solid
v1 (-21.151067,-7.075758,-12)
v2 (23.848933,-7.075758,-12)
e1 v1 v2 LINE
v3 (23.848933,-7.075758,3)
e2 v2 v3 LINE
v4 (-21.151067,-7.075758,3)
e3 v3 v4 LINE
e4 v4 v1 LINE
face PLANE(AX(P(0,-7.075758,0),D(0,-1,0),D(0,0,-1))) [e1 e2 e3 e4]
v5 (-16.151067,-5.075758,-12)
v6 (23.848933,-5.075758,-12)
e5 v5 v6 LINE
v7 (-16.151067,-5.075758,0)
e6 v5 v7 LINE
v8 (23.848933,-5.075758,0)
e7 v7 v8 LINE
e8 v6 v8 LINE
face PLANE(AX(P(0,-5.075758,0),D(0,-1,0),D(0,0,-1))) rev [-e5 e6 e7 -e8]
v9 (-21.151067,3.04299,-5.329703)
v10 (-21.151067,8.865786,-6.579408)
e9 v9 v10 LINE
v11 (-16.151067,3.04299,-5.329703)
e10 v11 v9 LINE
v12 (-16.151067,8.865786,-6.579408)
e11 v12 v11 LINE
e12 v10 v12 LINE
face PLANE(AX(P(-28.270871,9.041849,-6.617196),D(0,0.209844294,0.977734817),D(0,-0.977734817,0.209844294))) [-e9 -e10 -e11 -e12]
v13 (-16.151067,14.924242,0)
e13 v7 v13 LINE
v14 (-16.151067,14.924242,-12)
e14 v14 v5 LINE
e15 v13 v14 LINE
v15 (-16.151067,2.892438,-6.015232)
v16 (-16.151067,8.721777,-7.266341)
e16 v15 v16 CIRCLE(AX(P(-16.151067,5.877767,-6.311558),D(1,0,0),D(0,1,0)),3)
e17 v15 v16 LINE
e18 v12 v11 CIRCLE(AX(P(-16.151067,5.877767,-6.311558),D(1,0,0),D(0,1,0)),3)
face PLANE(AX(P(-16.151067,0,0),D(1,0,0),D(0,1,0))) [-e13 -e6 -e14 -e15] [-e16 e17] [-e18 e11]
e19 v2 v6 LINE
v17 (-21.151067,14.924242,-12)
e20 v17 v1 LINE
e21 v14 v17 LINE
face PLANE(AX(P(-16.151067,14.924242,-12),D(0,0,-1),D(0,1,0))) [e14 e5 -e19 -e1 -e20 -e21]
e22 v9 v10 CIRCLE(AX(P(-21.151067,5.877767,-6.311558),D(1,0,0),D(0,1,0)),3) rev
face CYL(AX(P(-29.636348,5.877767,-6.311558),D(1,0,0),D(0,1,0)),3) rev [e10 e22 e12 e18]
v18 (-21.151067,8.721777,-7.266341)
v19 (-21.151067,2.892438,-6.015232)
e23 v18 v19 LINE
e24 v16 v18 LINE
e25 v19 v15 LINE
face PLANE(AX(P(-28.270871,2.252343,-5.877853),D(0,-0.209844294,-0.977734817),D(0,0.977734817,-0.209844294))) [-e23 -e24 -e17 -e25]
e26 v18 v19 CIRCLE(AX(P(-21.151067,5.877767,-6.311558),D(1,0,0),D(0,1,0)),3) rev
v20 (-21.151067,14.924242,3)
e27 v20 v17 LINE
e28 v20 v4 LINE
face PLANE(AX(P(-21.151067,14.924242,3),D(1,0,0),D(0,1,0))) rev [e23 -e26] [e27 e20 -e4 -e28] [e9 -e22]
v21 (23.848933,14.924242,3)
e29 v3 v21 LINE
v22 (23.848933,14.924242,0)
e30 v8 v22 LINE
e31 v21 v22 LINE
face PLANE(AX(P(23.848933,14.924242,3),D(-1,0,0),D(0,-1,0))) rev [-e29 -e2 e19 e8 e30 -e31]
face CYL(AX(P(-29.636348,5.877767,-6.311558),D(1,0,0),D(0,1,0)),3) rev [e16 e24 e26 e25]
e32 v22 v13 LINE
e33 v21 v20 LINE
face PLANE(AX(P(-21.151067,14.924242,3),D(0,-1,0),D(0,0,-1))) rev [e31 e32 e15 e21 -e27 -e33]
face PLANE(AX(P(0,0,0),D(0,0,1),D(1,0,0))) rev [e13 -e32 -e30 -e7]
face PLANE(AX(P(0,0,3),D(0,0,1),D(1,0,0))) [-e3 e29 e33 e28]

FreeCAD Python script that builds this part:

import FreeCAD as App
import Part
import Sketcher


def add_polygon(sketch, points):
    """Adds a closed chain of lines whose ends are joined by coincident constraints."""
    first, n = sketch.GeometryCount, len(points)
    for a, b in zip(points, points[1:] + points[:1]):
        sketch.addGeometry(Part.LineSegment(App.Vector(*a, 0), App.Vector(*b, 0)), False)
    for i in range(n):
        sketch.addConstraint(Sketcher.Constraint("Coincident", first + i, 2, first + (i + 1) % n, 1))

doc = App.newDocument("Part")
params = doc.addObject("Spreadsheet::Sheet", "Params")
for row, (alias, value) in enumerate([
    ("sketch1_width", "45 mm"),
    ("sketch1_height", "20 mm"),
    ("pad1_length", "3 mm"),
    ("sketch2_width", "20 mm"),
    ("sketch2_height", "15 mm"),
    ("pad2_length", "5 mm"),
    ("sketch3_width", "45 mm"),
    ("sketch3_height", "15 mm"),
    ("pad3_length", "2 mm"),
    ("sketch4_diameter", "6 mm"),
    ("pad4_length", "5 mm"),
], start=1):
    params.set(f"A{row}", alias)
    params.set(f"B{row}", "=" + value)
    params.setAlias(f"B{row}", alias)

body = doc.addObject("PartDesign::Body", "Body")

sketch1 = body.newObject("Sketcher::SketchObject", "Sketch")
sketch1.AttachmentSupport = (doc.getObject("XY_Plane"), [""])
sketch1.MapMode = "FlatFace"
add_polygon(sketch1, [(-21, 15), (-21, -5), (24, -5), (24, 15)])
sketch1.addConstraint([
    Sketcher.Constraint("Vertical", 0),
    Sketcher.Constraint("Horizontal", 1),
    Sketcher.Constraint("Vertical", 2),
    Sketcher.Constraint("Horizontal", 3),
    Sketcher.Constraint("DistanceX", 1, 1, 1, 2, 45.0),
    Sketcher.Constraint("DistanceY", 0, 2, 0, 1, 20.0),
    Sketcher.Constraint("DistanceX", 0, 2, -1, 1, 21.151067),
    Sketcher.Constraint("DistanceY", 0, 2, -1, 1, 5.075758),
])
sketch1.setExpression("Constraints[8]", "Params.sketch1_width")
sketch1.setExpression("Constraints[9]", "Params.sketch1_height")
pad1 = body.newObject("PartDesign::Pad", "Pad")
pad1.Profile = sketch1
pad1.setExpression("Length", "Params.pad1_length")

sketch2 = body.newObject("Sketcher::SketchObject", "Sketch001")
sketch2.AttachmentSupport = (doc.getObject("YZ_Plane"), [""])
sketch2.MapMode = "FlatFace"
sketch2.AttachmentOffset = App.Placement(App.Vector(0, 0, -21.151067), App.Rotation())
add_polygon(sketch2, [(15, -12), (-5, -12), (-5, 3), (15, 3)])
sketch2.addConstraint([
    Sketcher.Constraint("Horizontal", 0),
    Sketcher.Constraint("Vertical", 1),
    Sketcher.Constraint("Horizontal", 2),
    Sketcher.Constraint("Vertical", 3),
    Sketcher.Constraint("DistanceX", 0, 2, 0, 1, 20.0),
    Sketcher.Constraint("DistanceY", 1, 1, 1, 2, 15.0),
    Sketcher.Constraint("DistanceY", 0, 2, -1, 1, 12.0),
    Sketcher.Constraint("DistanceX", 0, 2, -1, 1, 5.075758),
])
sketch2.setExpression("Constraints[8]", "Params.sketch2_width")
sketch2.setExpression("Constraints[9]", "Params.sketch2_height")
pad2 = body.newObject("PartDesign::Pad", "Pad001")
pad2.Profile = sketch2
pad2.setExpression("Length", "Params.pad2_length")

sketch3 = body.newObject("Sketcher::SketchObject", "Sketch002")
sketch3.AttachmentSupport = (doc.getObject("XZ_Plane"), [""])
sketch3.MapMode = "FlatFace"
sketch3.AttachmentOffset = App.Placement(App.Vector(0, 0, 5.075758), App.Rotation())
add_polygon(sketch3, [(-21, 3), (-21, -12), (24, -12), (24, 3)])
sketch3.addConstraint([
    Sketcher.Constraint("Vertical", 0),
    Sketcher.Constraint("Horizontal", 1),
    Sketcher.Constraint("Vertical", 2),
    Sketcher.Constraint("Horizontal", 3),
    Sketcher.Constraint("DistanceX", 1, 1, 1, 2, 45.0),
    Sketcher.Constraint("DistanceY", 0, 2, 0, 1, 15.0),
    Sketcher.Constraint("DistanceY", 0, 2, -1, 1, 12.0),
    Sketcher.Constraint("DistanceX", 0, 2, -1, 1, 21.151067),
])
sketch3.setExpression("Constraints[8]", "Params.sketch3_width")
sketch3.setExpression("Constraints[9]", "Params.sketch3_height")
pad3 = body.newObject("PartDesign::Pad", "Pad002")
pad3.Profile = sketch3
pad3.setExpression("Length", "Params.pad3_length")

sketch4 = body.newObject("Sketcher::SketchObject", "Sketch003")
sketch4.AttachmentSupport = (doc.getObject("YZ_Plane"), [""])
sketch4.MapMode = "FlatFace"
sketch4.AttachmentOffset = App.Placement(App.Vector(0, 0, -16.151067), App.Rotation())
sketch4.addGeometry(Part.Circle(App.Vector(5.9, -6.3, 0), App.Vector(0, 0, 1), 3), False)
sketch4.addConstraint([
    Sketcher.Constraint("Diameter", 0, 6.0),
    Sketcher.Constraint("DistanceX", -1, 1, 0, 3, 5.877767),
    Sketcher.Constraint("DistanceY", 0, 3, -1, 1, 6.311558),
])
sketch4.setExpression("Constraints[0]", "Params.sketch4_diameter")
pocket1 = body.newObject("PartDesign::Pocket", "Pocket")
pocket1.Profile = sketch4
pocket1.Type = "UpToFirst"

sketch5 = body.newObject("Sketcher::SketchObject", "Sketch004")
sketch5.AttachmentSupport = (doc.getObject("YZ_Plane"), [""])
sketch5.MapMode = "FlatFace"
sketch5.AttachmentOffset = App.Placement(App.Vector(0, 0, -16.151067), App.Rotation())
add_polygon(sketch5, [(9, -6.6), (2.4, -5.2), (2.3, -5.9), (9, -7.3)])
sketch5.addConstraint([
    Sketcher.Constraint("Vertical", 3),
    Sketcher.Constraint("Perpendicular", 0, 1),
    Sketcher.Constraint("Perpendicular", 1, 2),
    Sketcher.Constraint("DistanceY", 3, 1, 3, 2, 0.717841),
    Sketcher.Constraint("Distance", 2, 6.944118),
    Sketcher.Constraint("DistanceY", 0, 2, -1, 1, 5.191622),
    Sketcher.Constraint("DistanceX", -1, 1, 2, 2, 9.041849),
    Sketcher.Constraint("DistanceX", 1, 2, 0, 2, 0.147281),
])
pad4 = body.newObject("PartDesign::Pad", "Pad003")
pad4.Profile = sketch5
pad4.setExpression("Length", "Params.pad4_length")
pad4.Reversed = True

doc.recompute()
